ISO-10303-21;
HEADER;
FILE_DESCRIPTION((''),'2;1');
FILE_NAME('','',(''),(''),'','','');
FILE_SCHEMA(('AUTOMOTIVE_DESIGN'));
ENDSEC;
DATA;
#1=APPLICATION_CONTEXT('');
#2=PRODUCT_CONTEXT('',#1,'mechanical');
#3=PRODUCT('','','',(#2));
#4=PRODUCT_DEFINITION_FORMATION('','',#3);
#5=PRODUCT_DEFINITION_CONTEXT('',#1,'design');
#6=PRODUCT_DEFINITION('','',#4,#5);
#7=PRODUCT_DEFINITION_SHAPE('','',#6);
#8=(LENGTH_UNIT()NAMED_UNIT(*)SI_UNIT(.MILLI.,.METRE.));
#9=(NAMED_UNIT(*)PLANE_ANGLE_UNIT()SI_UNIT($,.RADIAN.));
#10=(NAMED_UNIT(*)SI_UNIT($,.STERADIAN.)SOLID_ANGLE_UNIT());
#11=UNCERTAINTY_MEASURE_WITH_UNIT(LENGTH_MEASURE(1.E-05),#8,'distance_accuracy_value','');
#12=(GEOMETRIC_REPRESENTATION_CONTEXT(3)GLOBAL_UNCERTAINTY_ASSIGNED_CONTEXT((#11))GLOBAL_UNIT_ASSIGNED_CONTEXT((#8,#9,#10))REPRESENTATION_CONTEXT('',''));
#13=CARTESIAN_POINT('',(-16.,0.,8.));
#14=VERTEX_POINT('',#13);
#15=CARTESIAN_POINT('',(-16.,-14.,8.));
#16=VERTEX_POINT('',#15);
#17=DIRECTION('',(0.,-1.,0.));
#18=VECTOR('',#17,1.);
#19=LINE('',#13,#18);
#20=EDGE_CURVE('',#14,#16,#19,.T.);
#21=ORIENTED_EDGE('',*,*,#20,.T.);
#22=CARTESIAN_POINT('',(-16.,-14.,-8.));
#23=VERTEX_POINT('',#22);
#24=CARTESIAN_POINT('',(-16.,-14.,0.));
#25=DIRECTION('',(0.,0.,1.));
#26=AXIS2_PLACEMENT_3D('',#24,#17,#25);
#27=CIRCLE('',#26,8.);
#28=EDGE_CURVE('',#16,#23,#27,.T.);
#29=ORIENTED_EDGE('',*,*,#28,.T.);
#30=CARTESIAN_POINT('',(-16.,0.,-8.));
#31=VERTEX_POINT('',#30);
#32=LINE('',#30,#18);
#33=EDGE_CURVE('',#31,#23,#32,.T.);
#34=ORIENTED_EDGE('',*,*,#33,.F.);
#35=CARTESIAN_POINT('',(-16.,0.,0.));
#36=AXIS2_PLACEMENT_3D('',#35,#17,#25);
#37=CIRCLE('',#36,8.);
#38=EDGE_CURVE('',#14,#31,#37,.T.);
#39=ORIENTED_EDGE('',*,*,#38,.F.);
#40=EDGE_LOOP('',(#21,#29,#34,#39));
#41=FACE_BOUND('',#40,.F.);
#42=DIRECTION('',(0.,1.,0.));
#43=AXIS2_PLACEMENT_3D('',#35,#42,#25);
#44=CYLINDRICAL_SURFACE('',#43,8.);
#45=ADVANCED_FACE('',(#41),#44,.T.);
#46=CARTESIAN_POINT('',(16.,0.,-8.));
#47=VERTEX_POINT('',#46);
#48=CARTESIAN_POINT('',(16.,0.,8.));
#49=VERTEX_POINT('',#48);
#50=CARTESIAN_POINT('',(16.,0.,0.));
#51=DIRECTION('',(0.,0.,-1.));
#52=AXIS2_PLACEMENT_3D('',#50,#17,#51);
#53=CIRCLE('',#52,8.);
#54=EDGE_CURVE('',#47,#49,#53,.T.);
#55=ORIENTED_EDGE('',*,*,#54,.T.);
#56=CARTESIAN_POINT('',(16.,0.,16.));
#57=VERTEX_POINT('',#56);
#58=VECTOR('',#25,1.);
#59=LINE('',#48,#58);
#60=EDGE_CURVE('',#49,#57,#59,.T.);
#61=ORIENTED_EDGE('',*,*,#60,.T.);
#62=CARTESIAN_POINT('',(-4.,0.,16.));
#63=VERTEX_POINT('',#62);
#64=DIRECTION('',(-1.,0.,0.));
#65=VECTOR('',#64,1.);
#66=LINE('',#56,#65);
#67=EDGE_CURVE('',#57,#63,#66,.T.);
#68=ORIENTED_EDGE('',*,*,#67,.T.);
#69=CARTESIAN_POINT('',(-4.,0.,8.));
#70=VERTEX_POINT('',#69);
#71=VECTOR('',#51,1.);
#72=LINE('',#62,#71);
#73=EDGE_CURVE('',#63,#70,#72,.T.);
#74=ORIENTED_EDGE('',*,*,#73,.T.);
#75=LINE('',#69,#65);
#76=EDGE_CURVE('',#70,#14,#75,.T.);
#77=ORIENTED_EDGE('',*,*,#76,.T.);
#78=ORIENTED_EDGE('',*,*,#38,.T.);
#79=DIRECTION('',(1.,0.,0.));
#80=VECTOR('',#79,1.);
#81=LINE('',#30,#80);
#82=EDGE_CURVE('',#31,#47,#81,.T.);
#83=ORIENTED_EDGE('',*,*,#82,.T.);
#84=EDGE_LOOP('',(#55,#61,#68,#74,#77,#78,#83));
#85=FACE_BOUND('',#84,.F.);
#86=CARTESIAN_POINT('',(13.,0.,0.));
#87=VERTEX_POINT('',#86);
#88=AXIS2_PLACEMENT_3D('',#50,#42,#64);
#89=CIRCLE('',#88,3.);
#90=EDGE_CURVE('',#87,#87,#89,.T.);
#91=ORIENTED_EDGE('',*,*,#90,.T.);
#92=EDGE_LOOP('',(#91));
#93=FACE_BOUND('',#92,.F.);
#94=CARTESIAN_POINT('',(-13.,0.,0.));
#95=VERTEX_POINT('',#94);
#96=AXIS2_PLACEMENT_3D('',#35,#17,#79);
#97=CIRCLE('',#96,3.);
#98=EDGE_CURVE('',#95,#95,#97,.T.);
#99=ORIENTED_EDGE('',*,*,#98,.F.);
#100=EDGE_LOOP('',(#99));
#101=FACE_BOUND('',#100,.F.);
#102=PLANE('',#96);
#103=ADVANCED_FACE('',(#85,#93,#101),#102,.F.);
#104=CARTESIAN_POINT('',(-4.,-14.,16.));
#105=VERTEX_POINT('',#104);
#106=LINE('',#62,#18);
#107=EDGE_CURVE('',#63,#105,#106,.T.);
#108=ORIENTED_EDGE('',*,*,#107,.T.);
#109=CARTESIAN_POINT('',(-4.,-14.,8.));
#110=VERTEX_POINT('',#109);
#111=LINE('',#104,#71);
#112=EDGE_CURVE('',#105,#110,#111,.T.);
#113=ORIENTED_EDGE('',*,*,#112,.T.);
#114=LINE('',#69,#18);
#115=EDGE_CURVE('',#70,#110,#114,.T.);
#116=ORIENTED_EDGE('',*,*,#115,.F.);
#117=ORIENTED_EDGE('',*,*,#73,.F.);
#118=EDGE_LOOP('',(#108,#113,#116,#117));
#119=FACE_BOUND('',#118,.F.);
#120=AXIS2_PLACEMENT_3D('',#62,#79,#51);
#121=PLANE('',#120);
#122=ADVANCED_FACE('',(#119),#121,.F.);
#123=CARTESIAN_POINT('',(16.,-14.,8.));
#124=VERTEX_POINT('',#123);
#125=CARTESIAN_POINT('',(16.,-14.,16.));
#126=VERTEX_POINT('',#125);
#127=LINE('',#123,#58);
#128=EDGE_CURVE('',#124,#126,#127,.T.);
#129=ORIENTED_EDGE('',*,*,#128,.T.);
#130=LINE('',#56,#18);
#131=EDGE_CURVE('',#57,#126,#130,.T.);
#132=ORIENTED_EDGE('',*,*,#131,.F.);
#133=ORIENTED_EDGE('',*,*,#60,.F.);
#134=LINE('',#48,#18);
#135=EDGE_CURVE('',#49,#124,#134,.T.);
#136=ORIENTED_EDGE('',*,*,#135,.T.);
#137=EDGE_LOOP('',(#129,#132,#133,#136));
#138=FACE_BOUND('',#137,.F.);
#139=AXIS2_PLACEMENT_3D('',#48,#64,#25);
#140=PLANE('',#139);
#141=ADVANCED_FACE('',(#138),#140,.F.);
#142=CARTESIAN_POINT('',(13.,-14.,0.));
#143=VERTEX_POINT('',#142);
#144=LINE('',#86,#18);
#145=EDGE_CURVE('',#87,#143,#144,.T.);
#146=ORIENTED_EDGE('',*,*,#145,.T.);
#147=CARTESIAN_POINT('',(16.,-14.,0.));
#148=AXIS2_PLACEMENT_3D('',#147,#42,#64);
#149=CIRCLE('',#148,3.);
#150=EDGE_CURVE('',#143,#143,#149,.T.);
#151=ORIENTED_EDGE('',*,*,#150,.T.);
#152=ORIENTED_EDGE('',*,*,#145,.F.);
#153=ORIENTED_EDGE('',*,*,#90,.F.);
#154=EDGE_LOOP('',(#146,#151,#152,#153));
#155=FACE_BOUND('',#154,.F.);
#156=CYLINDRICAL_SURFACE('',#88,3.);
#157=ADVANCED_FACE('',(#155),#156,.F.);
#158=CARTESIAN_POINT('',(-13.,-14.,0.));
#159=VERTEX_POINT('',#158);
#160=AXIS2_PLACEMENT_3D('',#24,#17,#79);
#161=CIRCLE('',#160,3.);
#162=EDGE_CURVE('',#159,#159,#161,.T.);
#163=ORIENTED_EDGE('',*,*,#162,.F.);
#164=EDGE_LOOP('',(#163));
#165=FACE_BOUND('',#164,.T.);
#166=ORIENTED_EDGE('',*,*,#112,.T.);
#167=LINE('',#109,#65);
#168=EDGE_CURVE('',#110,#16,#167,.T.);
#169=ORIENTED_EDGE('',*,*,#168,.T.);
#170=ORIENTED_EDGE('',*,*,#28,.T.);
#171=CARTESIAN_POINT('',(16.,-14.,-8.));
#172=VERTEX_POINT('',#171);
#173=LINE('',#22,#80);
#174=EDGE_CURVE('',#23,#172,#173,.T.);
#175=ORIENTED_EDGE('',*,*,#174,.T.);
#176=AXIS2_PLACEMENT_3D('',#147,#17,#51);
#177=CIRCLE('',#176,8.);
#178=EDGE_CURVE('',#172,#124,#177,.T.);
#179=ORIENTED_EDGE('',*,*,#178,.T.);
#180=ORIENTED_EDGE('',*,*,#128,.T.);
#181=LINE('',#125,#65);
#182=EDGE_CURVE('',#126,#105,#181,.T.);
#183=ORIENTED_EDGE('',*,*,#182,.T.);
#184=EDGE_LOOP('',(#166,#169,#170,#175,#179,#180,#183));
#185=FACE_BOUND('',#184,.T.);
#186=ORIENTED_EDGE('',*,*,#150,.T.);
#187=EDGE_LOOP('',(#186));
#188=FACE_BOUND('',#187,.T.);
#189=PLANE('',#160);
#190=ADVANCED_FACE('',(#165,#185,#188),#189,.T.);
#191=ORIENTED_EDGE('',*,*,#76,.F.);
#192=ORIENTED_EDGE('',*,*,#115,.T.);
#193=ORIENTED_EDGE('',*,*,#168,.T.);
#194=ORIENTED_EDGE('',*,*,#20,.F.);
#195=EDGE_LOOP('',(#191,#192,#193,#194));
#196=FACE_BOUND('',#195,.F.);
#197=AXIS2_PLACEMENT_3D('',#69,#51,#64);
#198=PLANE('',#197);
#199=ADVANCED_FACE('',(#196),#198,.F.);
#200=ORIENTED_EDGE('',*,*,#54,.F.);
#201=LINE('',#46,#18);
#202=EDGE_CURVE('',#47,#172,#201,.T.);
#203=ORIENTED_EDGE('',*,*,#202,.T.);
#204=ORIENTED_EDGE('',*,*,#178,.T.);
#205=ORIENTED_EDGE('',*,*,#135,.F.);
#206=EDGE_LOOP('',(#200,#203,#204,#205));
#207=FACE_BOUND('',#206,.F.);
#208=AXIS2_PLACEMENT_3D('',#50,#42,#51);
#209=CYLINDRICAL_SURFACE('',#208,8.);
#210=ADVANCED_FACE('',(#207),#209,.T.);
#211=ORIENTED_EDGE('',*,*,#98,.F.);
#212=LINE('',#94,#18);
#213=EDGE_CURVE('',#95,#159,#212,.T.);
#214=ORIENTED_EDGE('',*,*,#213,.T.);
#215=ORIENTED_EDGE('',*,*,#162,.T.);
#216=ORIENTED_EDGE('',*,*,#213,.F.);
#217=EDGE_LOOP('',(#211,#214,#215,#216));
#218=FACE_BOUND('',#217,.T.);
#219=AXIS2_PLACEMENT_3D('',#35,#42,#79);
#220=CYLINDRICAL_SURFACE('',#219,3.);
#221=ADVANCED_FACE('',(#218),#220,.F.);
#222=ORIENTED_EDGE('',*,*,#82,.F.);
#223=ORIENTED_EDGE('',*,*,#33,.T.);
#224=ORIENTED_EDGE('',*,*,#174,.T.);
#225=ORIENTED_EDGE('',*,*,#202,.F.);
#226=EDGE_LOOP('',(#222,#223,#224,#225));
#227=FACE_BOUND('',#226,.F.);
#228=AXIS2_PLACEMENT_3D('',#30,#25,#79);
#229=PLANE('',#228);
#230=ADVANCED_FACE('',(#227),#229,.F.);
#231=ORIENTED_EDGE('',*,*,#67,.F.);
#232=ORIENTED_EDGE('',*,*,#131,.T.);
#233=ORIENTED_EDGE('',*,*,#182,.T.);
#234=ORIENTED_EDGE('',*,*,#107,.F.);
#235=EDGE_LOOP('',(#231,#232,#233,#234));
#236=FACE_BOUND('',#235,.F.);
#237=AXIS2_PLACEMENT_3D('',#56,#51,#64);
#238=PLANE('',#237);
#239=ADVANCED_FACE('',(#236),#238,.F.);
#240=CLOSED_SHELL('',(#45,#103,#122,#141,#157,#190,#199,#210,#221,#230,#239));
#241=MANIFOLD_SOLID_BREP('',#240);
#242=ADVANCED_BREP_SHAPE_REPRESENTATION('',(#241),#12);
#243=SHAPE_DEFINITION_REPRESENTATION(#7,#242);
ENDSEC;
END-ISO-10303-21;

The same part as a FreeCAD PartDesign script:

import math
import FreeCAD as App
import Part
import Sketcher

doc = App.newDocument("Part")
body = doc.addObject("PartDesign::Body", "Body")

# Sketch on XZ plane
sketch1 = doc.addObject("Sketcher::SketchObject", "Sketch")
body.addObject(sketch1)
sketch1.AttachmentSupport = (doc.XZ_Plane, [""])
sketch1.MapMode = "FlatFace"
sketch1.addGeometry(Part.ArcOfCircle(Part.Circle(App.Vector(-16, 0, 0), App.Vector(0, 0, 1), 8), math.radians(90), math.radians(270)), False)
sketch1.addGeometry(Part.LineSegment(App.Vector(-16, -8, 0), App.Vector(16, -8, 0)), False)
sketch1.addGeometry(Part.ArcOfCircle(Part.Circle(App.Vector(16, 0, 0), App.Vector(0, 0, 1), 8), math.radians(-90), math.radians(90)), False)
sketch1.addGeometry(Part.LineSegment(App.Vector(16, 8, 0), App.Vector(16, 16, 0)), False)
sketch1.addGeometry(Part.LineSegment(App.Vector(16, 16, 0), App.Vector(-4, 16, 0)), False)
sketch1.addGeometry(Part.LineSegment(App.Vector(-4, 16, 0), App.Vector(-4, 8, 0)), False)
sketch1.addGeometry(Part.LineSegment(App.Vector(-4, 8, 0), App.Vector(-16, 8, 0)), False)
sketch1.addGeometry(Part.Circle(App.Vector(-16, 0, 0), App.Vector(0, 0, 1), 3), False)
sketch1.addGeometry(Part.Circle(App.Vector(16, 0, 0), App.Vector(0, 0, 1), 3), False)
sketch1.addConstraint(Sketcher.Constraint("Tangent", 0, 2, 1, 1))
sketch1.addConstraint(Sketcher.Constraint("Tangent", 1, 2, 2, 1))
sketch1.addConstraint(Sketcher.Constraint("Coincident", 2, 2, 3, 1))
sketch1.addConstraint(Sketcher.Constraint("Coincident", 3, 2, 4, 1))
sketch1.addConstraint(Sketcher.Constraint("Coincident", 4, 2, 5, 1))
sketch1.addConstraint(Sketcher.Constraint("Coincident", 5, 2, 6, 1))
sketch1.addConstraint(Sketcher.Constraint("Tangent", 6, 2, 0, 1))
sketch1.addConstraint(Sketcher.Constraint("Horizontal", 1))
sketch1.addConstraint(Sketcher.Constraint("Vertical", 3))
sketch1.addConstraint(Sketcher.Constraint("Horizontal", 4))
sketch1.addConstraint(Sketcher.Constraint("Vertical", 5))
sketch1.addConstraint(Sketcher.Constraint("Horizontal", 6))
sketch1.addConstraint(Sketcher.Constraint("Coincident", 7, 3, 0, 3))
sketch1.addConstraint(Sketcher.Constraint("Coincident", 8, 3, 2, 3))
sketch1.addConstraint(Sketcher.Constraint("Equal", 0, 2))
sketch1.addConstraint(Sketcher.Constraint("Equal", 7, 8))
sketch1.addConstraint(Sketcher.Constraint("Symmetric", 0, 3, 2, 3, -1, 1))
sketch1.addConstraint(Sketcher.Constraint("Vertical", 1, 2, 2, 2))
sketch1.addConstraint(Sketcher.Constraint("Diameter", 7, 6.0))
sketch1.addConstraint(Sketcher.Constraint("Radius", 0, 8.0))
sketch1.addConstraint(Sketcher.Constraint("DistanceX", 1, 1, 1, 2, 32.0))
sketch1.addConstraint(Sketcher.Constraint("DistanceX", 4, 2, 4, 1, 20.0))
sketch1.addConstraint(Sketcher.Constraint("DistanceY", 3, 1, 3, 2, 8.0))
pad1 = doc.addObject("PartDesign::Pad", "Pad")
body.addObject(pad1)
pad1.Profile = sketch1
pad1.Length = 14

doc.recompute()
